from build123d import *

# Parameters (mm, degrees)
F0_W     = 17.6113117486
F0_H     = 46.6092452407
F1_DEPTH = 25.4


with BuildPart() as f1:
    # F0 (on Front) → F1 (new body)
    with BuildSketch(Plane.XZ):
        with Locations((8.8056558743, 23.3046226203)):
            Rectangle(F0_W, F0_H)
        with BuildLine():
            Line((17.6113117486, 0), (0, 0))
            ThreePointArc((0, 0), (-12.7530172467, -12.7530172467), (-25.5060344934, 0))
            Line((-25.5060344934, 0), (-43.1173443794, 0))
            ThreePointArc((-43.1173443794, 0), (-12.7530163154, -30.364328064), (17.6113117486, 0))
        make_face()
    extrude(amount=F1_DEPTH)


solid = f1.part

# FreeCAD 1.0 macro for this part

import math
import FreeCAD as App
import Part
import Sketcher
from FreeCAD import Vector
Q = App.Units.Quantity

doc = App.newDocument("Part")
params = doc.addObject("Spreadsheet::Sheet", "Params")
for row, (alias, value) in enumerate([
    ("pad1_length", "1 in"),
], start=1):
    params.set(f"A{row}", alias)
    params.set(f"B{row}", "=" + value)
    params.setAlias(f"B{row}", alias)

body = doc.addObject("PartDesign::Body", "Body")

sketch1 = body.newObject("Sketcher::SketchObject", "Sketch")
sketch1.AttachmentSupport = (doc.getObject("XZ_Plane"), [""])
sketch1.MapMode = "FlatFace"
sketch1.addGeometry(Part.LineSegment(Vector(0, 47, 0), Vector(0, 0, 0)), False)
sketch1.addGeometry(Part.ArcOfCircle(Part.Circle(Vector(-13, 0, 0), Vector(0, 0, 1), 13), math.radians(180), math.radians(360)), False)
sketch1.addGeometry(Part.LineSegment(Vector(-26, 0, 0), Vector(-43, 0, 0)), False)
sketch1.addGeometry(Part.ArcOfCircle(Part.Circle(Vector(-13, 0, 0), Vector(0, 0, 1), 30), math.radians(180), math.radians(360)), False)
sketch1.addGeometry(Part.LineSegment(Vector(18, 0, 0), Vector(18, 47, 0)), False)
sketch1.addGeometry(Part.LineSegment(Vector(18, 47, 0), Vector(0, 47, 0)), False)
sketch1.addConstraint(Sketcher.Constraint("Tangent", 0, 2, 1, 2))
sketch1.addConstraint(Sketcher.Constraint("Coincident", 1, 1, 2, 1))
sketch1.addConstraint(Sketcher.Constraint("Coincident", 2, 2, 3, 1))
sketch1.addConstraint(Sketcher.Constraint("Tangent", 3, 2, 4, 1))
sketch1.addConstraint(Sketcher.Constraint("Coincident", 4, 2, 5, 1))
sketch1.addConstraint(Sketcher.Constraint("Coincident", 5, 2, 0, 1))
sketch1.addConstraint(Sketcher.Constraint("Vertical", 0))
sketch1.addConstraint(Sketcher.Constraint("Horizontal", 2))
sketch1.addConstraint(Sketcher.Constraint("Vertical", 4))
sketch1.addConstraint(Sketcher.Constraint("Horizontal", 5))
sketch1.addConstraint(Sketcher.Constraint("Coincident", 0, 2, -1, 1))
sketch1.addConstraint(Sketcher.Constraint("Coincident", 3, 3, 1, 3))
sketch1.addConstraint(Sketcher.Constraint("PointOnObject", 1, 1, -1))
sketch1.addConstraint(Sketcher.Constraint("Radius", 3, Q("30.364328 mm")))
sketch1.addConstraint(Sketcher.Constraint("Radius", 1, Q("12.753017 mm")))
sketch1.addConstraint(Sketcher.Constraint("DistanceY", 0, 2, 0, 1, Q("46.609245 mm")))
pad1 = body.newObject("PartDesign::Pad", "Pad")
pad1.Profile = sketch1
pad1.setExpression("Length", "Params.pad1_length")

doc.recompute()
